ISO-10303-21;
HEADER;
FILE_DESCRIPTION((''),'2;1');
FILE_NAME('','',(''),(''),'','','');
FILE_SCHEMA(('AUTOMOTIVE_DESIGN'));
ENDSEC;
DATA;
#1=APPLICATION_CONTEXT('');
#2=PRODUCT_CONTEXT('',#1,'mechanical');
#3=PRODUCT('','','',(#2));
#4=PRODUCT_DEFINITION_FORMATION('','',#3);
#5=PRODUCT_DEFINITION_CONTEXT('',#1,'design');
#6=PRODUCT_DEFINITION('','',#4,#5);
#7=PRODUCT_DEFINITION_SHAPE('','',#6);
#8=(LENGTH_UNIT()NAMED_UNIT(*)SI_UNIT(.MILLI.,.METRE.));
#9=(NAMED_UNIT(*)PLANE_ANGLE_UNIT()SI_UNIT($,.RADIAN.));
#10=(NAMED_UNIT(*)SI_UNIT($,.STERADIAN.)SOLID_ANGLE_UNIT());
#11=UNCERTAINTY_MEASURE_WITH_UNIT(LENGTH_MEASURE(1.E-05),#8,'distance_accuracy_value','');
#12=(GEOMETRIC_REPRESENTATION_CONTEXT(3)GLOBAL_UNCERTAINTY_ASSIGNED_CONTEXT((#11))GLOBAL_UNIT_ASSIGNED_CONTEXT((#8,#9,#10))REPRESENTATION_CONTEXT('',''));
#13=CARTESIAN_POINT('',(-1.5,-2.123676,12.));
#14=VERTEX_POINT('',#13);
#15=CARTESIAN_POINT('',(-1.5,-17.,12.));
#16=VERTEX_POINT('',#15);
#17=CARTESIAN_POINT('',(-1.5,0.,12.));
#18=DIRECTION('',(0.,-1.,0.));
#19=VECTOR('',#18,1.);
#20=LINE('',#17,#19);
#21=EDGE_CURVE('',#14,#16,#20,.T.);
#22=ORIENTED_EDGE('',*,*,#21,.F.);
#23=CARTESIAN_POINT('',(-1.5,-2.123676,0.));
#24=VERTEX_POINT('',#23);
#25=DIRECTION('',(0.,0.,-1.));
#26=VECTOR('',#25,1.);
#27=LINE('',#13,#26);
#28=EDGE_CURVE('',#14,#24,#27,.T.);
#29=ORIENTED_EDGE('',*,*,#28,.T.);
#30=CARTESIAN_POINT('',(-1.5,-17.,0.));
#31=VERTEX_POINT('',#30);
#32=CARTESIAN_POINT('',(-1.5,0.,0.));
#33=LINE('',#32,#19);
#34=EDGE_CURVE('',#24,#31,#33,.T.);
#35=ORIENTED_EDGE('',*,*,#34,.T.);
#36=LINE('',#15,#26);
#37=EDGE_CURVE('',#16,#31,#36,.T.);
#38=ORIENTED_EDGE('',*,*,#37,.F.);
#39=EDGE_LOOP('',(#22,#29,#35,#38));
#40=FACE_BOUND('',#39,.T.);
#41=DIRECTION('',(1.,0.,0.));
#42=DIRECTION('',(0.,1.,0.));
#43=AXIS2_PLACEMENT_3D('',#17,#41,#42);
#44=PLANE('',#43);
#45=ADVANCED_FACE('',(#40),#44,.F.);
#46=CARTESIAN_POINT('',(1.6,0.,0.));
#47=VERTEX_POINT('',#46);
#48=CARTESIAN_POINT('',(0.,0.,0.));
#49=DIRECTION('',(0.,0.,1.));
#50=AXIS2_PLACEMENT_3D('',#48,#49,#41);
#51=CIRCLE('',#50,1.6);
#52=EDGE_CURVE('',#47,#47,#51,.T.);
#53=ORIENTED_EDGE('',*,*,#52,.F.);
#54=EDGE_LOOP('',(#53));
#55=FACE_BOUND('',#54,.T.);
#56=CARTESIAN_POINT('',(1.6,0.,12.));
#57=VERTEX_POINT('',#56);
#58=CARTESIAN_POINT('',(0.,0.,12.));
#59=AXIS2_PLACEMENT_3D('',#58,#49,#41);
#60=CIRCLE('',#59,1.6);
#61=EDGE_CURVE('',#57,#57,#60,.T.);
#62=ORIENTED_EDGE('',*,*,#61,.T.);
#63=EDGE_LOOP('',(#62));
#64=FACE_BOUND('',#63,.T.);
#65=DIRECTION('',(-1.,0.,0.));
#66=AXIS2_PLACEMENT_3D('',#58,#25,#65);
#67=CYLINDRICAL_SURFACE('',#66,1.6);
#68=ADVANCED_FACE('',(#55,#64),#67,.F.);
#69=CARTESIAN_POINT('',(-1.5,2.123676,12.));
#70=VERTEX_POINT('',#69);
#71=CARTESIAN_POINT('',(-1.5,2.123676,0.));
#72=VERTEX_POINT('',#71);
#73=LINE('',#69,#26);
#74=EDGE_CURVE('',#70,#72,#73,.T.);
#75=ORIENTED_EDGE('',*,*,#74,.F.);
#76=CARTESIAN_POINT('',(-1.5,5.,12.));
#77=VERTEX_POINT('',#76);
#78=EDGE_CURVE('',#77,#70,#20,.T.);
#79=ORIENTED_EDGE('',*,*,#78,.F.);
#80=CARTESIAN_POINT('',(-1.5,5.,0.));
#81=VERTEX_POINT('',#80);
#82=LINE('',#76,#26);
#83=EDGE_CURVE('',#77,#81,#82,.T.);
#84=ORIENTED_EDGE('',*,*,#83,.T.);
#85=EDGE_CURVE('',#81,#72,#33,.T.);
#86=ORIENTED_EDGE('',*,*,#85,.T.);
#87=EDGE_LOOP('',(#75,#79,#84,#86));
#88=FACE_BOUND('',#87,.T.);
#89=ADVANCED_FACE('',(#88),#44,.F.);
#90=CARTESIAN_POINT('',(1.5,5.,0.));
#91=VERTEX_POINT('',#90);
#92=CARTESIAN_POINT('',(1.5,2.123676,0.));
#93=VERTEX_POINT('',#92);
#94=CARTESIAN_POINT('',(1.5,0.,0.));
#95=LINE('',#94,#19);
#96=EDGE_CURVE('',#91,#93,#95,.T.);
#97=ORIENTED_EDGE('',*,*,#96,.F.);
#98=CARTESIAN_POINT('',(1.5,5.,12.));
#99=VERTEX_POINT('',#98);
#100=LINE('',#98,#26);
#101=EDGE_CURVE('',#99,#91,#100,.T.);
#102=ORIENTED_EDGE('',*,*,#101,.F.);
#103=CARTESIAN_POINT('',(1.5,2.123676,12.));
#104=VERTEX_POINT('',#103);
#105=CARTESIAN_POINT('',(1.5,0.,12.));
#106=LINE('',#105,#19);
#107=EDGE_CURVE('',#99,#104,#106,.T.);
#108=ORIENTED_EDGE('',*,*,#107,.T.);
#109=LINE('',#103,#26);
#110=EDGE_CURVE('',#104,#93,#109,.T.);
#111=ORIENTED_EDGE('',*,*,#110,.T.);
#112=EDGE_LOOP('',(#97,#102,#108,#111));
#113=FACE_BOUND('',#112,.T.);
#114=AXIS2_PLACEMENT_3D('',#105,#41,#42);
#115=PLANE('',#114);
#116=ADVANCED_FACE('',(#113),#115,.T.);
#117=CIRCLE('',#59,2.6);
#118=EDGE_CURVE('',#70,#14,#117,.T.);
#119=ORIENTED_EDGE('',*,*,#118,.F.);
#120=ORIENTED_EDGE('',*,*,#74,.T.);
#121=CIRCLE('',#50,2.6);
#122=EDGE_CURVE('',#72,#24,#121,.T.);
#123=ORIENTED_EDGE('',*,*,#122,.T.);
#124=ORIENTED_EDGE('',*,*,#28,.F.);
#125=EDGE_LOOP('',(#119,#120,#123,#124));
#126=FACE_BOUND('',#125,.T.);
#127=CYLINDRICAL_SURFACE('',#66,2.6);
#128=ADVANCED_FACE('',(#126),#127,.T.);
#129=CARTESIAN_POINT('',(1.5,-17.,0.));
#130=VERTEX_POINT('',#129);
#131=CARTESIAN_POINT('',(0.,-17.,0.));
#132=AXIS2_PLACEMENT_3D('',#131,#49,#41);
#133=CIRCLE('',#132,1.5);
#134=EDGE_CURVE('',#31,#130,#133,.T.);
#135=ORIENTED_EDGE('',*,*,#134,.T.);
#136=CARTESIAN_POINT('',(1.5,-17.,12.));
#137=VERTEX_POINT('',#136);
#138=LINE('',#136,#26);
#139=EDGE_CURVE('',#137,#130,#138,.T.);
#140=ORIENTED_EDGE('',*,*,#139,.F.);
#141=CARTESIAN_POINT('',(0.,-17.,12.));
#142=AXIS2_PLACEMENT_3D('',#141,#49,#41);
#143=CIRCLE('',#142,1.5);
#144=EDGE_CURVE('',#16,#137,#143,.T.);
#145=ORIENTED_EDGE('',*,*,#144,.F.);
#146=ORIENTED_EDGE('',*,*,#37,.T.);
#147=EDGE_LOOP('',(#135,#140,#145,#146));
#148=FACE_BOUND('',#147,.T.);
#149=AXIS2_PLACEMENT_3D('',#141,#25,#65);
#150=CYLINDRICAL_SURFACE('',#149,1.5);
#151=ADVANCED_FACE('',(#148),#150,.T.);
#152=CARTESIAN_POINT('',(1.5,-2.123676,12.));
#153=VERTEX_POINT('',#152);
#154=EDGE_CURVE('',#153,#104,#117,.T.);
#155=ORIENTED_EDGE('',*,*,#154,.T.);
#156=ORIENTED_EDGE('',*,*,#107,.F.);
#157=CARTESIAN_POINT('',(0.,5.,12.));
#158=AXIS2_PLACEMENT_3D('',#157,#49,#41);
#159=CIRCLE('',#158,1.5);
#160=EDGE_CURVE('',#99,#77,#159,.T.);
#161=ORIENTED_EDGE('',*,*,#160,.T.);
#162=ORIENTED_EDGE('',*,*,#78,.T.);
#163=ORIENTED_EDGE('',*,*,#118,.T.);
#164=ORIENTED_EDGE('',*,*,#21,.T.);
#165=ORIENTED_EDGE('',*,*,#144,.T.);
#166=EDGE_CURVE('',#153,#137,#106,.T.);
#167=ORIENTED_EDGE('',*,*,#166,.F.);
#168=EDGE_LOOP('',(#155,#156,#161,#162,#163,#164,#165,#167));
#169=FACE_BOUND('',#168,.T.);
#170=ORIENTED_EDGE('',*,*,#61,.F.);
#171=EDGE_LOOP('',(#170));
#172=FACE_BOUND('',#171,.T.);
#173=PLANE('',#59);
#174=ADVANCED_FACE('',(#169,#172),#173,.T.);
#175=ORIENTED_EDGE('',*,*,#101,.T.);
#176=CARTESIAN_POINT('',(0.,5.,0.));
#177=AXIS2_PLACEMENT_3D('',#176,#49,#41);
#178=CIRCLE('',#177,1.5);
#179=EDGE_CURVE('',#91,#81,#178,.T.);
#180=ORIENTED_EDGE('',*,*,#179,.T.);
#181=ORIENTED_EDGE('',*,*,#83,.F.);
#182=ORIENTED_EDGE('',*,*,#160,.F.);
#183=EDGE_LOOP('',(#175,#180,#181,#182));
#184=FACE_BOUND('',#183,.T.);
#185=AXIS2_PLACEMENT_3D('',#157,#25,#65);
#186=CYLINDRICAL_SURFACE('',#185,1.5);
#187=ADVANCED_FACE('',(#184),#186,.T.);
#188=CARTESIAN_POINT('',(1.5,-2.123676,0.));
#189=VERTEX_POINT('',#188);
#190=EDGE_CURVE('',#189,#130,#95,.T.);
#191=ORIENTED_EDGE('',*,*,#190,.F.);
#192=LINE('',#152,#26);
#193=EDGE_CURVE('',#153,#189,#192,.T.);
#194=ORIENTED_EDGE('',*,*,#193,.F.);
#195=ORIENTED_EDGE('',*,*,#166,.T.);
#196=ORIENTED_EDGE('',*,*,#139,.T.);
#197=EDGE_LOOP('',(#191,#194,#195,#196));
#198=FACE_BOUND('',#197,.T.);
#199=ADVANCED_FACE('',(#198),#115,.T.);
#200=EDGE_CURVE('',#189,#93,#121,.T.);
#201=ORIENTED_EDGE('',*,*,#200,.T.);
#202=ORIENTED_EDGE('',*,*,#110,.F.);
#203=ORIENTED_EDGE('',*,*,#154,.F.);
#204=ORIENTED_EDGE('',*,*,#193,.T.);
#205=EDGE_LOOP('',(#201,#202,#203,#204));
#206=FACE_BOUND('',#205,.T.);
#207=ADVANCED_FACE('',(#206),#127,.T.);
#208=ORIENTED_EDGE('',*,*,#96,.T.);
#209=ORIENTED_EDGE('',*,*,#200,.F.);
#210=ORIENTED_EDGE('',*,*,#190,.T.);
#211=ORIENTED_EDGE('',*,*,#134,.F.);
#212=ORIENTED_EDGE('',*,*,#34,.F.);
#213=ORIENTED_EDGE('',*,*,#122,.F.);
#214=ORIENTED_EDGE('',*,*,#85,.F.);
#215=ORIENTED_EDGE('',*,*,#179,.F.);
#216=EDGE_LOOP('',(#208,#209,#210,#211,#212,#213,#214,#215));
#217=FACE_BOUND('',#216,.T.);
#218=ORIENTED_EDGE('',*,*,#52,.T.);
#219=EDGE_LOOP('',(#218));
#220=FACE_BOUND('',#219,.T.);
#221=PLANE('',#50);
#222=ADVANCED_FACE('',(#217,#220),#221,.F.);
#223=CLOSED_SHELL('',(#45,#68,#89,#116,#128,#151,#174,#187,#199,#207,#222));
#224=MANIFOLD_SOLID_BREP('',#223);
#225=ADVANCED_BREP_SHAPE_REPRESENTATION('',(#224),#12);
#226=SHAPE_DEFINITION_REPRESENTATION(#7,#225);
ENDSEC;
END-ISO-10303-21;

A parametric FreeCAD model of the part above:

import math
import FreeCAD as App
import Part
import Sketcher
from FreeCAD import Vector

doc = App.newDocument("Part")
body = doc.addObject("PartDesign::Body", "Body")

sketch1 = doc.addObject("Sketcher::SketchObject", "Sketch")
body.addObject(sketch1)
sketch1.AttachmentSupport = (doc.XY_Plane, [""])
sketch1.MapMode = "FlatFace"
sketch1.addGeometry([
    Part.ArcOfCircle(Part.Circle(Vector(0, 0, 0), Vector(0, 0, 1), 2.6), math.radians(125), math.radians(235)),
    Part.LineSegment(Vector(-1.5, -2.1, 0), Vector(-1.5, -17, 0)),
    Part.ArcOfCircle(Part.Circle(Vector(0, -17, 0), Vector(0, 0, 1), 1.5), math.radians(180), math.radians(360)),
    Part.LineSegment(Vector(1.5, -17, 0), Vector(1.5, -2.1, 0)),
    Part.ArcOfCircle(Part.Circle(Vector(0, 0, 0), Vector(0, 0, 1), 2.6), math.radians(-55), math.radians(55)),
    Part.LineSegment(Vector(1.5, 2.1, 0), Vector(1.5, 5, 0)),
    Part.ArcOfCircle(Part.Circle(Vector(0, 5, 0), Vector(0, 0, 1), 1.5), math.radians(0), math.radians(180)),
    Part.LineSegment(Vector(-1.5, 5, 0), Vector(-1.5, 2.1, 0)),
    Part.Circle(Vector(0, 0, 0), Vector(0, 0, 1), 1.6),
], False)
sketch1.addConstraint([
    Sketcher.Constraint("Coincident", 0, 2, 1, 1),
    Sketcher.Constraint("Tangent", 1, 2, 2, 1),
    Sketcher.Constraint("Tangent", 2, 2, 3, 1),
    Sketcher.Constraint("Coincident", 3, 2, 4, 1),
    Sketcher.Constraint("Coincident", 4, 2, 5, 1),
    Sketcher.Constraint("Tangent", 5, 2, 6, 1),
    Sketcher.Constraint("Tangent", 6, 2, 7, 1),
    Sketcher.Constraint("Coincident", 7, 2, 0, 1),
    Sketcher.Constraint("Vertical", 1),
    Sketcher.Constraint("Vertical", 3),
    Sketcher.Constraint("Vertical", 5),
    Sketcher.Constraint("Vertical", 7),
    Sketcher.Constraint("Coincident", 0, 3, -1, 1),
    Sketcher.Constraint("Coincident", 4, 3, -1, 1),
    Sketcher.Constraint("Coincident", 8, 3, -1, 1),
    Sketcher.Constraint("Equal", 0, 4),
    Sketcher.Constraint("Equal", 2, 6),
    Sketcher.Constraint("PointOnObject", 2, 3, -2),
    Sketcher.Constraint("PointOnObject", 6, 3, -2),
    Sketcher.Constraint("Diameter", 8, 3.2),
    Sketcher.Constraint("Radius", 0, 2.6),
    Sketcher.Constraint("Radius", 2, 1.5),
    Sketcher.Constraint("DistanceY", 2, 3, -1, 1, 17.0),
    Sketcher.Constraint("DistanceY", -1, 1, 6, 3, 5.0),
])
pad1 = doc.addObject("PartDesign::Pad", "Pad")
body.addObject(pad1)
pad1.Profile = sketch1
pad1.Length = 12

doc.recompute()
